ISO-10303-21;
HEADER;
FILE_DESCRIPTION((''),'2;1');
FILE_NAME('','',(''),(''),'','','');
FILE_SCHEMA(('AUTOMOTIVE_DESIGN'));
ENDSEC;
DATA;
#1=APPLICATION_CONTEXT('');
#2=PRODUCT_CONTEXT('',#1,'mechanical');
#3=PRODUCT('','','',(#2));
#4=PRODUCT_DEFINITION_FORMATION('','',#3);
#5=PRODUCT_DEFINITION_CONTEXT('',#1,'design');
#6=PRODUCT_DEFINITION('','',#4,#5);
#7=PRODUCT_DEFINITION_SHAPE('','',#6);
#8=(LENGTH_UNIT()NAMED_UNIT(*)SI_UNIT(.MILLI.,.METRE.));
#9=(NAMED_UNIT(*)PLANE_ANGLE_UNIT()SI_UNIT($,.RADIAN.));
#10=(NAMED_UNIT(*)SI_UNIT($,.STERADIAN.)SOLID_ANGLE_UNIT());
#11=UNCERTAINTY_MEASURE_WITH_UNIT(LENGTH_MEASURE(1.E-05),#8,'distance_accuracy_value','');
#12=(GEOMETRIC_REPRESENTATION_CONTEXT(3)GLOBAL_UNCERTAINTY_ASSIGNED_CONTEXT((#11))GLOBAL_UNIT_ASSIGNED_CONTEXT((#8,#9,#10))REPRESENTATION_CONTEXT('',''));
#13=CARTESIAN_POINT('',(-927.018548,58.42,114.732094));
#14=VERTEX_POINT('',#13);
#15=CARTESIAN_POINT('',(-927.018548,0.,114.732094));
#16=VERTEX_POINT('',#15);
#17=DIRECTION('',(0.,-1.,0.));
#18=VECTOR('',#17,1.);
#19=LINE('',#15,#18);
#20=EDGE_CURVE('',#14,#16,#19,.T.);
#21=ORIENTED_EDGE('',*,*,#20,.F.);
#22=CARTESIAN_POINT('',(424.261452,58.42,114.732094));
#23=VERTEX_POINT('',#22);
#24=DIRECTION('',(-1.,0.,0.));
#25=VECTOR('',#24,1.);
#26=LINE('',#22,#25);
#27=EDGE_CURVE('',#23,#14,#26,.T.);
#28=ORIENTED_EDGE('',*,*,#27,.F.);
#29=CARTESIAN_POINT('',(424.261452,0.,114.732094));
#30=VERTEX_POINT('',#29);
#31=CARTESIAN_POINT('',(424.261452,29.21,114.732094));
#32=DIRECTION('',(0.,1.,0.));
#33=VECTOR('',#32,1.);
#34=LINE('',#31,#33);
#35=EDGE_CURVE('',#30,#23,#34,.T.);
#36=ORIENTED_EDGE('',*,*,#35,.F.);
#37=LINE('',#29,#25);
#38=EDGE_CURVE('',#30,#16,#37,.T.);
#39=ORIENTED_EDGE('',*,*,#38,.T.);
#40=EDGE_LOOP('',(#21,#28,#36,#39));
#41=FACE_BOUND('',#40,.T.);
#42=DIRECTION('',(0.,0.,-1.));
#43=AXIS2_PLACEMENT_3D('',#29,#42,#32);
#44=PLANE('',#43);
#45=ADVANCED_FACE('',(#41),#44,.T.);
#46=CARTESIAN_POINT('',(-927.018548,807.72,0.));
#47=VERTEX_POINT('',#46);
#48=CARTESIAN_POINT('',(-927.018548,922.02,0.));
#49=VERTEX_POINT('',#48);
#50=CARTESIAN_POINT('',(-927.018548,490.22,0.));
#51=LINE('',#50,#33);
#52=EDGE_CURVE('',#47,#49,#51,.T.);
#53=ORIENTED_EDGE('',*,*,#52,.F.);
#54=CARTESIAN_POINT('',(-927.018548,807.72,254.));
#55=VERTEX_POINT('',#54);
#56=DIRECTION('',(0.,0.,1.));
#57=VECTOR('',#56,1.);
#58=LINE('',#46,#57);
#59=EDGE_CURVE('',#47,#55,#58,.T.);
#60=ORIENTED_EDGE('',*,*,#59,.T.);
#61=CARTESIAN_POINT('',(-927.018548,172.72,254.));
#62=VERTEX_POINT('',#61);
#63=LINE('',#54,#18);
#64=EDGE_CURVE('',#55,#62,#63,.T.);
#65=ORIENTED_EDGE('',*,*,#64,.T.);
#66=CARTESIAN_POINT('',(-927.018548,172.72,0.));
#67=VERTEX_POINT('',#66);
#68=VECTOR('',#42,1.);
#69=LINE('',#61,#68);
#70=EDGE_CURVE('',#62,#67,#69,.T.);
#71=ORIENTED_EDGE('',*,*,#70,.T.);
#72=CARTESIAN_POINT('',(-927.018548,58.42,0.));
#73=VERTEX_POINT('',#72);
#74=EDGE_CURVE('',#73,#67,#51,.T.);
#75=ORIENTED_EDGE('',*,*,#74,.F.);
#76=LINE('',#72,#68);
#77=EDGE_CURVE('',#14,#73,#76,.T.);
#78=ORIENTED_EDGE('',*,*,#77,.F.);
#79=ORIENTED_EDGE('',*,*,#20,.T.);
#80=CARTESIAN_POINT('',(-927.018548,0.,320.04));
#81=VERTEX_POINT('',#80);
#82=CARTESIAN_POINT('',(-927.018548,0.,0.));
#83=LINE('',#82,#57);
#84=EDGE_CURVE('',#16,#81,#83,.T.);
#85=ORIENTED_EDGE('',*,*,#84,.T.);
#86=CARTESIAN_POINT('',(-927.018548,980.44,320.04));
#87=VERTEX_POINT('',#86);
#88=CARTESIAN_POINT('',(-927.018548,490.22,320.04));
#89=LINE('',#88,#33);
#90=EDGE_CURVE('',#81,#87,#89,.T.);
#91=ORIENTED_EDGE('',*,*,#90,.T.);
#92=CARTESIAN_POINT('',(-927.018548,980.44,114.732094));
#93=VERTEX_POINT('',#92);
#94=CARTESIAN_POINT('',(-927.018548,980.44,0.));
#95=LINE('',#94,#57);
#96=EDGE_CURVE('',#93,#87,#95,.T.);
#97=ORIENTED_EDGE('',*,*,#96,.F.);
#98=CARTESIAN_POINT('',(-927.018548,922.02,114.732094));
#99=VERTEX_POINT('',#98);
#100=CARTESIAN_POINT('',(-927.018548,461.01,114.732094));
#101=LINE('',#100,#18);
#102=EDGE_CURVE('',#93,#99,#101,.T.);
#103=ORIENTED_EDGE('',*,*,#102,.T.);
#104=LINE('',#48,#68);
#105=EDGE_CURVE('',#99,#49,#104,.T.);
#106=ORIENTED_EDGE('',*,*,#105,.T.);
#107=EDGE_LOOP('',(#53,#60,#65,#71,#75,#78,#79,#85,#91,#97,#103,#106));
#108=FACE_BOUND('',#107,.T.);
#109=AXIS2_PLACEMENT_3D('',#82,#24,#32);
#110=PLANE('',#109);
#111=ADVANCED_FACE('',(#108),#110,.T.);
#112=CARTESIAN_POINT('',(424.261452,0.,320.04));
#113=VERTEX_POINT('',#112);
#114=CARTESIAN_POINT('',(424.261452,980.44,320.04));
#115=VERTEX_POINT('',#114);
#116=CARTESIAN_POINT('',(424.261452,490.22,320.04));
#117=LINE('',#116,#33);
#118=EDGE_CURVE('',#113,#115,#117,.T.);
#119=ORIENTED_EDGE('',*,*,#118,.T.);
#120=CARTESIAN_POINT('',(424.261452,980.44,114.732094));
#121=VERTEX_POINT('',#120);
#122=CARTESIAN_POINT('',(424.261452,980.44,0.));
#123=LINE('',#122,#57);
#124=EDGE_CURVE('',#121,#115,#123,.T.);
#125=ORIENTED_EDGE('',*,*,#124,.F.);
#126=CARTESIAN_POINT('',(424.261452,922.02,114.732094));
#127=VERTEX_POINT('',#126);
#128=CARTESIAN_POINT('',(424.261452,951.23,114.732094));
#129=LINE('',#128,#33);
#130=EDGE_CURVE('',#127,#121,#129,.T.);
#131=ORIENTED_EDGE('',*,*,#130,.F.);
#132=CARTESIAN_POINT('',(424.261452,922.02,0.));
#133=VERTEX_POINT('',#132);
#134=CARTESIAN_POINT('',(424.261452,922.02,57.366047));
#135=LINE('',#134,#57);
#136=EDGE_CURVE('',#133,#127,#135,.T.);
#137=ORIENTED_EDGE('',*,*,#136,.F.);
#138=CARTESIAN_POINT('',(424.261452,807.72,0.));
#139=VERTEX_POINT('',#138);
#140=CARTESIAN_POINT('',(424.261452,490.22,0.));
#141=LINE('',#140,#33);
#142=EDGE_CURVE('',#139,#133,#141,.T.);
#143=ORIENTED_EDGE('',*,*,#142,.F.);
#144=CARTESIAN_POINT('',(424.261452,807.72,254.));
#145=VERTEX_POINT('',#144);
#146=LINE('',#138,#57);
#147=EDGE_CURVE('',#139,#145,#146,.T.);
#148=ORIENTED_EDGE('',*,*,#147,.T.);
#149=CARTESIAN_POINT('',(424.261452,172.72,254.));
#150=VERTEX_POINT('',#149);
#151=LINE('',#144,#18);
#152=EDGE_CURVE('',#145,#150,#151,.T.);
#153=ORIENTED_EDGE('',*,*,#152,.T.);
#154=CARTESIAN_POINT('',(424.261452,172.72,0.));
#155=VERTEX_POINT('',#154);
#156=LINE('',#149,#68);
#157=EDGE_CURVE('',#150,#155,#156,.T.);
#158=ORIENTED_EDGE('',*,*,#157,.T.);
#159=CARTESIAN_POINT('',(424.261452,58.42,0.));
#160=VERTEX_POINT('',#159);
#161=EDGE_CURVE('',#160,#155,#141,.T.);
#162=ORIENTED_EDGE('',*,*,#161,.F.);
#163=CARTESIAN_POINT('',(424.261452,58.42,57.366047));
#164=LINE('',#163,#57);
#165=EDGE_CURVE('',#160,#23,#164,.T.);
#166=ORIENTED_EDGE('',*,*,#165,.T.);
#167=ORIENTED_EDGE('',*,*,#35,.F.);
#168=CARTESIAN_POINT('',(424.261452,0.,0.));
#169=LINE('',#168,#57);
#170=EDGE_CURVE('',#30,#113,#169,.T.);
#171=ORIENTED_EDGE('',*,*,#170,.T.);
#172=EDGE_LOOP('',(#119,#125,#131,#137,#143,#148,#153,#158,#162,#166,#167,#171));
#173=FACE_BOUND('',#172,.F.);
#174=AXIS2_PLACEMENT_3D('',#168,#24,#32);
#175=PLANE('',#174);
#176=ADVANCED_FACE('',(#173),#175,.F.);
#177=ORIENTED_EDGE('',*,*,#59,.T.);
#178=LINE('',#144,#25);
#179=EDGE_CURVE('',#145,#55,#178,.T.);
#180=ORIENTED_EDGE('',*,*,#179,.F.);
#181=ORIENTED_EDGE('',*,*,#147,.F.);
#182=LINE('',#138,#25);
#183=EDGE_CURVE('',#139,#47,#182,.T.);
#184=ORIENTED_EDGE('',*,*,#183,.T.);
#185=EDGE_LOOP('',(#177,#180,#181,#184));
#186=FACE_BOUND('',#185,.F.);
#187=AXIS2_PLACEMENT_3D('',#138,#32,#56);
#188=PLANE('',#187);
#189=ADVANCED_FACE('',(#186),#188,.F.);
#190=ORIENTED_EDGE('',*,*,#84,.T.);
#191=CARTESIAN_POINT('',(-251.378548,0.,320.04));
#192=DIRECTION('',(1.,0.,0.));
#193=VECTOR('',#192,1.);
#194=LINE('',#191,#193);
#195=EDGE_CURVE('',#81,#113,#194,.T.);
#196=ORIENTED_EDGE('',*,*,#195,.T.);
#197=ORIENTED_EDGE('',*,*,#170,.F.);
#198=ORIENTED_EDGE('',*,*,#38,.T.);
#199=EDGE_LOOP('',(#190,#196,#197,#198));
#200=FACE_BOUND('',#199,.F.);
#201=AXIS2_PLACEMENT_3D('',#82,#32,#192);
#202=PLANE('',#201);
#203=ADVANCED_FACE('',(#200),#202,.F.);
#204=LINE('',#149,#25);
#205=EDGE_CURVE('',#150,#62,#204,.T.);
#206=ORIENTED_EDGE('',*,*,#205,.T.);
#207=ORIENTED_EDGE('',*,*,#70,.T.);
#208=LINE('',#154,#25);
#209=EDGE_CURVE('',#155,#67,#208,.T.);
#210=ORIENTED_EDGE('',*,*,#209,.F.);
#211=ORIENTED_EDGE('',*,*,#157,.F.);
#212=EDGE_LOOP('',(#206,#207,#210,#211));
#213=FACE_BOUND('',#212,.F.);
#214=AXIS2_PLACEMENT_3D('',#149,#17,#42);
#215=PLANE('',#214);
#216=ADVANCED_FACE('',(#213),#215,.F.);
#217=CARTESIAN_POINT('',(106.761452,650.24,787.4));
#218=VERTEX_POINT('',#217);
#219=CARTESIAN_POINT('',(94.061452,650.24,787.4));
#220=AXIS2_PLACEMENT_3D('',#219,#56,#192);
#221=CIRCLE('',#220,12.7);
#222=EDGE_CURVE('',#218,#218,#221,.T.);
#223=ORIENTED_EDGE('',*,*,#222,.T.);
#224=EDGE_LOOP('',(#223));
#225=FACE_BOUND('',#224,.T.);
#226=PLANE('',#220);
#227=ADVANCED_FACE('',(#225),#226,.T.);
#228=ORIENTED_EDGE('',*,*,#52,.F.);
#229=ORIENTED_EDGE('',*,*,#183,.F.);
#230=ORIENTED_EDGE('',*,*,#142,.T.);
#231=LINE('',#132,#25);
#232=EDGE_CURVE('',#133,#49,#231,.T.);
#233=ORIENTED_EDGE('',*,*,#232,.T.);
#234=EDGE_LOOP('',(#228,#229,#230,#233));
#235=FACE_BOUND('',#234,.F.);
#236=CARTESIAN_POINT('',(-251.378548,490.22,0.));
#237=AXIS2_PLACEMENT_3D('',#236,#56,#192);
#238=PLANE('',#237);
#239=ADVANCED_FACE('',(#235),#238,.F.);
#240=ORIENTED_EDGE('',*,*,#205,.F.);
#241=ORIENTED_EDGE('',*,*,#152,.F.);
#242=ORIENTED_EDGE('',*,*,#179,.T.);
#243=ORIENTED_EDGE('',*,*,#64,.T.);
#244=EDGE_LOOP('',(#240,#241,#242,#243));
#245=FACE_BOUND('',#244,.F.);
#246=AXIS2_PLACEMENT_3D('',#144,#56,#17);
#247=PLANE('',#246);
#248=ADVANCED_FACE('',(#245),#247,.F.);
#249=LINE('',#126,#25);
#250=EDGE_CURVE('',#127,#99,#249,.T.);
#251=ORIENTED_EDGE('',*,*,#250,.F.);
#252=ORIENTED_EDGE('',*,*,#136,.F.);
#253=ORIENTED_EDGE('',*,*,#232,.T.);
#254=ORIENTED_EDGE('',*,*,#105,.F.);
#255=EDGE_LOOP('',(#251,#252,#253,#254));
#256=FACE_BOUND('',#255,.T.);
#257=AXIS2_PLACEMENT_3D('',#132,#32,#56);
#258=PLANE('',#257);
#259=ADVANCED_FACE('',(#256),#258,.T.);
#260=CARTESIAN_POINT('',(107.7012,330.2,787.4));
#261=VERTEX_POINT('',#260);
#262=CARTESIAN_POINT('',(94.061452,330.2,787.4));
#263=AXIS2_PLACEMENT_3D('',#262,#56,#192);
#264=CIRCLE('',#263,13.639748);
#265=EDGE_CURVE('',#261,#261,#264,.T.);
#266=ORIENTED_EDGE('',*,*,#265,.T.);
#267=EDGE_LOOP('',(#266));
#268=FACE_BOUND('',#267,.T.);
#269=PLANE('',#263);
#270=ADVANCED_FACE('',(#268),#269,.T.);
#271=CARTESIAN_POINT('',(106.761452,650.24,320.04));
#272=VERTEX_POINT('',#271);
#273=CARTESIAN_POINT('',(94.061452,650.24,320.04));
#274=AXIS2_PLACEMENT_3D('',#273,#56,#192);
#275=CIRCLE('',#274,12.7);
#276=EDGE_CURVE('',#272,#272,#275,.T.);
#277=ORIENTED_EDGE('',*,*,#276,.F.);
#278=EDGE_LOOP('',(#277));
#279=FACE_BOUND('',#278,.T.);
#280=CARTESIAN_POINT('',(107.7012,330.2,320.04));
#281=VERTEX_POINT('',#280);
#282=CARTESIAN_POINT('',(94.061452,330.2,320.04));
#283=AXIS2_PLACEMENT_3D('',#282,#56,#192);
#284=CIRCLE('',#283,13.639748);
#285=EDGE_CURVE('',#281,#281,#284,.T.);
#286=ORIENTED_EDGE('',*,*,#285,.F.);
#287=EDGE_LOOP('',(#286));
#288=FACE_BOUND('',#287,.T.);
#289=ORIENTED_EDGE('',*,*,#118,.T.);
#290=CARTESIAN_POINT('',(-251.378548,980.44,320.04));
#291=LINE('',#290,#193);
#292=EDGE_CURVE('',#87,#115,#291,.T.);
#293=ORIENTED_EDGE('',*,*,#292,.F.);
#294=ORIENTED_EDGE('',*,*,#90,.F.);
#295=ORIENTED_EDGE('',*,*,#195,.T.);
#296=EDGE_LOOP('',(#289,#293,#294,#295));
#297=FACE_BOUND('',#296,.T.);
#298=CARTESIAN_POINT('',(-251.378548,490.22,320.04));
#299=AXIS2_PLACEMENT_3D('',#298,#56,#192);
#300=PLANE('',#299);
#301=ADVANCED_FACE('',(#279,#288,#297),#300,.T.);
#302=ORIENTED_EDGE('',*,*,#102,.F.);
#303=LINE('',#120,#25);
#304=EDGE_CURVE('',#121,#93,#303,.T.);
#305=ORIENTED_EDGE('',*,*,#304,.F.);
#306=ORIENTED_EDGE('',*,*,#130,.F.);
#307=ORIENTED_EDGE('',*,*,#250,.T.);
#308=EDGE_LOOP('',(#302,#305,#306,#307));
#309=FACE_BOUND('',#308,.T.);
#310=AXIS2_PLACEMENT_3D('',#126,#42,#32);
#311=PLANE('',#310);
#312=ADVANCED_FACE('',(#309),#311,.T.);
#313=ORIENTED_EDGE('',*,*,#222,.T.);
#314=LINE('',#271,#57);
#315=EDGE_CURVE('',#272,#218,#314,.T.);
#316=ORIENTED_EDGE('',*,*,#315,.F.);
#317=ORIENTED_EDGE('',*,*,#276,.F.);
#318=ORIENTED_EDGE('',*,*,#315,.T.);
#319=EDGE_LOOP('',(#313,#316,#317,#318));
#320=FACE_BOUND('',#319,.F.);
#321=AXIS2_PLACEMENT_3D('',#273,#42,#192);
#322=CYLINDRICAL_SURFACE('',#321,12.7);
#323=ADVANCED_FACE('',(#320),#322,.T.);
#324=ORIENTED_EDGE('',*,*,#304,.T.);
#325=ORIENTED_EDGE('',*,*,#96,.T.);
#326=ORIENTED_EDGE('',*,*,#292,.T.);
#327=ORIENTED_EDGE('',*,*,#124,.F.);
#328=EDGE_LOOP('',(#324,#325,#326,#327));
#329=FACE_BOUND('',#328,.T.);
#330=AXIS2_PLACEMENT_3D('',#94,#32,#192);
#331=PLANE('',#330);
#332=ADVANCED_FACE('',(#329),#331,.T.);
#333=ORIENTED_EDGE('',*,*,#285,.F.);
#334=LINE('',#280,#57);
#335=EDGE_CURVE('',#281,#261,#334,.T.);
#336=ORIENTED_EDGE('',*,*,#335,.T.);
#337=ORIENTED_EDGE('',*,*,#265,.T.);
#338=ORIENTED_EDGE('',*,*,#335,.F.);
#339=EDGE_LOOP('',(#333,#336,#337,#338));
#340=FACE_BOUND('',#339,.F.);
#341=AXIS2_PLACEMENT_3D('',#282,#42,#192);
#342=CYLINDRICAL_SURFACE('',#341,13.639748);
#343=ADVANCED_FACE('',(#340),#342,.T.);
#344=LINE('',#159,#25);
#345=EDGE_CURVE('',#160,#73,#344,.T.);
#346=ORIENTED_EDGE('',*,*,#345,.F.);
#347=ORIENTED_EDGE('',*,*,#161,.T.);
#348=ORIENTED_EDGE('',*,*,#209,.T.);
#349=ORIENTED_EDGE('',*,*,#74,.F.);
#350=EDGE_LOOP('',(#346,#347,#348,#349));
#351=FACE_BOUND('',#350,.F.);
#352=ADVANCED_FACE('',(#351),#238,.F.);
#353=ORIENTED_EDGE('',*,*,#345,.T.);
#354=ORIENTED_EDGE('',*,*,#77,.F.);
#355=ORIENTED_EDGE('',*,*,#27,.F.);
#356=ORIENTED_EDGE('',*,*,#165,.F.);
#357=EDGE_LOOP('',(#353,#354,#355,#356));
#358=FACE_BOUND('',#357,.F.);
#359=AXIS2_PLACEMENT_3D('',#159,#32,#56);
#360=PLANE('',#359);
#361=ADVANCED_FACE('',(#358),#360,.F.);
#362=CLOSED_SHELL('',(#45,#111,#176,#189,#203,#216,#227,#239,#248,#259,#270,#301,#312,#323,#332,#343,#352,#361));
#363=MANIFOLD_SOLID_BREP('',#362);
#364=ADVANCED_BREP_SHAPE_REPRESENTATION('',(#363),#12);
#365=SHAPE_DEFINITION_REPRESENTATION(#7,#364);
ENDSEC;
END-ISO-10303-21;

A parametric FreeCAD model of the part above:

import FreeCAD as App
import Part
import Sketcher
Q = App.Units.Quantity


def add_polygon(sketch, points):
    """Adds a closed chain of lines whose ends are joined by coincident constraints."""
    first, n = sketch.GeometryCount, len(points)
    for a, b in zip(points, points[1:] + points[:1]):
        sketch.addGeometry(Part.LineSegment(App.Vector(*a, 0), App.Vector(*b, 0)), False)
    for i in range(n):
        sketch.addConstraint(Sketcher.Constraint("Coincident", first + i, 2, first + (i + 1) % n, 1))

doc = App.newDocument("Part")
params = doc.addObject("Spreadsheet::Sheet", "Params")
for row, (alias, value) in enumerate([
    ("sketch1_width", "53.2 in"),
    ("sketch1_height", "38.6 in"),
    ("pad1_length", "12.6 in"),
    ("sketch2_diameter", "1 in"),
    ("pad2_length", "18.4 in"),
    ("sketch3_width", "25 in"),
    ("sketch3_height", "10 in"),
    ("pocket1_length", "53.2 in"),
    ("sketch4_width", "2.3 in"),
    ("pocket2_length", "53.4 in"),
], start=1):
    params.set(f"A{row}", alias)
    params.set(f"B{row}", "=" + value)
    params.setAlias(f"B{row}", alias)

body = doc.addObject("PartDesign::Body", "Body")

# Sketch on XY plane
sketch1 = body.newObject("Sketcher::SketchObject", "Sketch")
sketch1.AttachmentSupport = (doc.getObject("XY_Plane"), [""])
sketch1.MapMode = "FlatFace"
add_polygon(sketch1, [(-927, 980), (-927, 0), (424, 0), (424, 980)])  # lines 0-3
sketch1.addConstraint([
    Sketcher.Constraint("Vertical", 0),
    Sketcher.Constraint("Horizontal", 1),
    Sketcher.Constraint("Vertical", 2),
    Sketcher.Constraint("Horizontal", 3),
    Sketcher.Constraint("PointOnObject", 0, 2, -1),
    Sketcher.Constraint("DistanceX", 1, 1, 1, 2, Q("53.2 in")),
    Sketcher.Constraint("DistanceY", 0, 2, 0, 1, Q("38.6 in")),
    Sketcher.Constraint("DistanceX", 0, 2, -1, 1, 927.018548),
])
sketch1.setExpression("Constraints[9]", "Params.sketch1_width")
sketch1.setExpression("Constraints[10]", "Params.sketch1_height")
pad1 = body.newObject("PartDesign::Pad", "Pad")
pad1.Profile = sketch1
pad1.setExpression("Length", "Params.pad1_length")

# Sketch on XY plane
sketch2 = body.newObject("Sketcher::SketchObject", "Sketch001")
sketch2.AttachmentSupport = (doc.getObject("XY_Plane"), [""])
sketch2.MapMode = "FlatFace"
sketch2.AttachmentOffset = App.Placement(App.Vector(0, 0, 12.6 * 25.4), App.Rotation())
sketch2.addGeometry([
    Part.Circle(App.Vector(94, 650, 0), App.Vector(0, 0, 1), 13),
    Part.Circle(App.Vector(94, 330, 0), App.Vector(0, 0, 1), 14),
], False)
sketch2.addConstraint([
    Sketcher.Constraint("Vertical", 0, 3, 1, 3),
    Sketcher.Constraint("Diameter", 0, Q("1 in")),
    Sketcher.Constraint("DistanceY", -1, 1, 1, 3, Q("13 in")),
    Sketcher.Constraint("DistanceY", -1, 1, 0, 3, Q("25.6 in")),
    Sketcher.Constraint("Diameter", 1, 27.279496),
    Sketcher.Constraint("DistanceX", -1, 1, 0, 3, 94.061452),
])
sketch2.setExpression("Constraints[1]", "Params.sketch2_diameter")
pad2 = body.newObject("PartDesign::Pad", "Pad001")
pad2.Profile = sketch2
pad2.setExpression("Length", "Params.pad2_length")

# Sketch on YZ plane
sketch3 = body.newObject("Sketcher::SketchObject", "Sketch002")
sketch3.AttachmentSupport = (doc.getObject("YZ_Plane"), [""])
sketch3.MapMode = "FlatFace"
sketch3.AttachmentOffset = App.Placement(App.Vector(0, 0, 424.261452), App.Rotation())
add_polygon(sketch3, [(808, 254), (173, 254), (173, 0), (808, 0)])  # lines 0-3
sketch3.addConstraint([
    Sketcher.Constraint("Horizontal", 0),
    Sketcher.Constraint("Vertical", 1),
    Sketcher.Constraint("Horizontal", 2),
    Sketcher.Constraint("Vertical", 3),
    Sketcher.Constraint("PointOnObject", 1, 2, -1),
    Sketcher.Constraint("DistanceX", 0, 2, 0, 1, Q("25 in")),
    Sketcher.Constraint("DistanceY", 1, 2, 1, 1, Q("10 in")),
    Sketcher.Constraint("DistanceX", -1, 1, 0, 2, Q("6.8 in")),
])
sketch3.setExpression("Constraints[9]", "Params.sketch3_width")
sketch3.setExpression("Constraints[10]", "Params.sketch3_height")
pocket1 = body.newObject("PartDesign::Pocket", "Pocket")
pocket1.Profile = sketch3
pocket1.setExpression("Length", "Params.pocket1_length")

# Sketch on YZ plane
sketch4 = body.newObject("Sketcher::SketchObject", "Sketch003")
sketch4.AttachmentSupport = (doc.getObject("YZ_Plane"), [""])
sketch4.MapMode = "FlatFace"
sketch4.AttachmentOffset = App.Placement(App.Vector(0, 0, 424.261452), App.Rotation())
add_polygon(sketch4, [(0, 115), (0, 0), (58, 0), (58, 115)])  # lines 0-3
add_polygon(sketch4, [(922, 115), (922, 0), (980, 0), (980, 115)])  # lines 4-7
sketch4.addConstraint([
    Sketcher.Constraint("Vertical", 0),
    Sketcher.Constraint("Horizontal", 1),
    Sketcher.Constraint("Vertical", 2),
    Sketcher.Constraint("Horizontal", 3),
    Sketcher.Constraint("Vertical", 4),
    Sketcher.Constraint("Horizontal", 5),
    Sketcher.Constraint("Vertical", 6),
    Sketcher.Constraint("Horizontal", 7),
    Sketcher.Constraint("Coincident", 0, 2, -1, 1),
    Sketcher.Constraint("PointOnObject", 4, 2, -1),
    Sketcher.Constraint("Horizontal", 3, 2, 6, 2),
    Sketcher.Constraint("Equal", 3, 5),
    Sketcher.Constraint("DistanceX", 1, 1, 1, 2, Q("2.3 in")),
    Sketcher.Constraint("DistanceX", 1, 2, 4, 2, Q("34 in")),
    Sketcher.Constraint("DistanceY", 0, 2, 0, 1, 114.732094),
])
sketch4.setExpression("Constraints[20]", "Params.sketch4_width")
pocket2 = body.newObject("PartDesign::Pocket", "Pocket001")
pocket2.Profile = sketch4
pocket2.setExpression("Length", "Params.pocket2_length")

doc.recompute()
